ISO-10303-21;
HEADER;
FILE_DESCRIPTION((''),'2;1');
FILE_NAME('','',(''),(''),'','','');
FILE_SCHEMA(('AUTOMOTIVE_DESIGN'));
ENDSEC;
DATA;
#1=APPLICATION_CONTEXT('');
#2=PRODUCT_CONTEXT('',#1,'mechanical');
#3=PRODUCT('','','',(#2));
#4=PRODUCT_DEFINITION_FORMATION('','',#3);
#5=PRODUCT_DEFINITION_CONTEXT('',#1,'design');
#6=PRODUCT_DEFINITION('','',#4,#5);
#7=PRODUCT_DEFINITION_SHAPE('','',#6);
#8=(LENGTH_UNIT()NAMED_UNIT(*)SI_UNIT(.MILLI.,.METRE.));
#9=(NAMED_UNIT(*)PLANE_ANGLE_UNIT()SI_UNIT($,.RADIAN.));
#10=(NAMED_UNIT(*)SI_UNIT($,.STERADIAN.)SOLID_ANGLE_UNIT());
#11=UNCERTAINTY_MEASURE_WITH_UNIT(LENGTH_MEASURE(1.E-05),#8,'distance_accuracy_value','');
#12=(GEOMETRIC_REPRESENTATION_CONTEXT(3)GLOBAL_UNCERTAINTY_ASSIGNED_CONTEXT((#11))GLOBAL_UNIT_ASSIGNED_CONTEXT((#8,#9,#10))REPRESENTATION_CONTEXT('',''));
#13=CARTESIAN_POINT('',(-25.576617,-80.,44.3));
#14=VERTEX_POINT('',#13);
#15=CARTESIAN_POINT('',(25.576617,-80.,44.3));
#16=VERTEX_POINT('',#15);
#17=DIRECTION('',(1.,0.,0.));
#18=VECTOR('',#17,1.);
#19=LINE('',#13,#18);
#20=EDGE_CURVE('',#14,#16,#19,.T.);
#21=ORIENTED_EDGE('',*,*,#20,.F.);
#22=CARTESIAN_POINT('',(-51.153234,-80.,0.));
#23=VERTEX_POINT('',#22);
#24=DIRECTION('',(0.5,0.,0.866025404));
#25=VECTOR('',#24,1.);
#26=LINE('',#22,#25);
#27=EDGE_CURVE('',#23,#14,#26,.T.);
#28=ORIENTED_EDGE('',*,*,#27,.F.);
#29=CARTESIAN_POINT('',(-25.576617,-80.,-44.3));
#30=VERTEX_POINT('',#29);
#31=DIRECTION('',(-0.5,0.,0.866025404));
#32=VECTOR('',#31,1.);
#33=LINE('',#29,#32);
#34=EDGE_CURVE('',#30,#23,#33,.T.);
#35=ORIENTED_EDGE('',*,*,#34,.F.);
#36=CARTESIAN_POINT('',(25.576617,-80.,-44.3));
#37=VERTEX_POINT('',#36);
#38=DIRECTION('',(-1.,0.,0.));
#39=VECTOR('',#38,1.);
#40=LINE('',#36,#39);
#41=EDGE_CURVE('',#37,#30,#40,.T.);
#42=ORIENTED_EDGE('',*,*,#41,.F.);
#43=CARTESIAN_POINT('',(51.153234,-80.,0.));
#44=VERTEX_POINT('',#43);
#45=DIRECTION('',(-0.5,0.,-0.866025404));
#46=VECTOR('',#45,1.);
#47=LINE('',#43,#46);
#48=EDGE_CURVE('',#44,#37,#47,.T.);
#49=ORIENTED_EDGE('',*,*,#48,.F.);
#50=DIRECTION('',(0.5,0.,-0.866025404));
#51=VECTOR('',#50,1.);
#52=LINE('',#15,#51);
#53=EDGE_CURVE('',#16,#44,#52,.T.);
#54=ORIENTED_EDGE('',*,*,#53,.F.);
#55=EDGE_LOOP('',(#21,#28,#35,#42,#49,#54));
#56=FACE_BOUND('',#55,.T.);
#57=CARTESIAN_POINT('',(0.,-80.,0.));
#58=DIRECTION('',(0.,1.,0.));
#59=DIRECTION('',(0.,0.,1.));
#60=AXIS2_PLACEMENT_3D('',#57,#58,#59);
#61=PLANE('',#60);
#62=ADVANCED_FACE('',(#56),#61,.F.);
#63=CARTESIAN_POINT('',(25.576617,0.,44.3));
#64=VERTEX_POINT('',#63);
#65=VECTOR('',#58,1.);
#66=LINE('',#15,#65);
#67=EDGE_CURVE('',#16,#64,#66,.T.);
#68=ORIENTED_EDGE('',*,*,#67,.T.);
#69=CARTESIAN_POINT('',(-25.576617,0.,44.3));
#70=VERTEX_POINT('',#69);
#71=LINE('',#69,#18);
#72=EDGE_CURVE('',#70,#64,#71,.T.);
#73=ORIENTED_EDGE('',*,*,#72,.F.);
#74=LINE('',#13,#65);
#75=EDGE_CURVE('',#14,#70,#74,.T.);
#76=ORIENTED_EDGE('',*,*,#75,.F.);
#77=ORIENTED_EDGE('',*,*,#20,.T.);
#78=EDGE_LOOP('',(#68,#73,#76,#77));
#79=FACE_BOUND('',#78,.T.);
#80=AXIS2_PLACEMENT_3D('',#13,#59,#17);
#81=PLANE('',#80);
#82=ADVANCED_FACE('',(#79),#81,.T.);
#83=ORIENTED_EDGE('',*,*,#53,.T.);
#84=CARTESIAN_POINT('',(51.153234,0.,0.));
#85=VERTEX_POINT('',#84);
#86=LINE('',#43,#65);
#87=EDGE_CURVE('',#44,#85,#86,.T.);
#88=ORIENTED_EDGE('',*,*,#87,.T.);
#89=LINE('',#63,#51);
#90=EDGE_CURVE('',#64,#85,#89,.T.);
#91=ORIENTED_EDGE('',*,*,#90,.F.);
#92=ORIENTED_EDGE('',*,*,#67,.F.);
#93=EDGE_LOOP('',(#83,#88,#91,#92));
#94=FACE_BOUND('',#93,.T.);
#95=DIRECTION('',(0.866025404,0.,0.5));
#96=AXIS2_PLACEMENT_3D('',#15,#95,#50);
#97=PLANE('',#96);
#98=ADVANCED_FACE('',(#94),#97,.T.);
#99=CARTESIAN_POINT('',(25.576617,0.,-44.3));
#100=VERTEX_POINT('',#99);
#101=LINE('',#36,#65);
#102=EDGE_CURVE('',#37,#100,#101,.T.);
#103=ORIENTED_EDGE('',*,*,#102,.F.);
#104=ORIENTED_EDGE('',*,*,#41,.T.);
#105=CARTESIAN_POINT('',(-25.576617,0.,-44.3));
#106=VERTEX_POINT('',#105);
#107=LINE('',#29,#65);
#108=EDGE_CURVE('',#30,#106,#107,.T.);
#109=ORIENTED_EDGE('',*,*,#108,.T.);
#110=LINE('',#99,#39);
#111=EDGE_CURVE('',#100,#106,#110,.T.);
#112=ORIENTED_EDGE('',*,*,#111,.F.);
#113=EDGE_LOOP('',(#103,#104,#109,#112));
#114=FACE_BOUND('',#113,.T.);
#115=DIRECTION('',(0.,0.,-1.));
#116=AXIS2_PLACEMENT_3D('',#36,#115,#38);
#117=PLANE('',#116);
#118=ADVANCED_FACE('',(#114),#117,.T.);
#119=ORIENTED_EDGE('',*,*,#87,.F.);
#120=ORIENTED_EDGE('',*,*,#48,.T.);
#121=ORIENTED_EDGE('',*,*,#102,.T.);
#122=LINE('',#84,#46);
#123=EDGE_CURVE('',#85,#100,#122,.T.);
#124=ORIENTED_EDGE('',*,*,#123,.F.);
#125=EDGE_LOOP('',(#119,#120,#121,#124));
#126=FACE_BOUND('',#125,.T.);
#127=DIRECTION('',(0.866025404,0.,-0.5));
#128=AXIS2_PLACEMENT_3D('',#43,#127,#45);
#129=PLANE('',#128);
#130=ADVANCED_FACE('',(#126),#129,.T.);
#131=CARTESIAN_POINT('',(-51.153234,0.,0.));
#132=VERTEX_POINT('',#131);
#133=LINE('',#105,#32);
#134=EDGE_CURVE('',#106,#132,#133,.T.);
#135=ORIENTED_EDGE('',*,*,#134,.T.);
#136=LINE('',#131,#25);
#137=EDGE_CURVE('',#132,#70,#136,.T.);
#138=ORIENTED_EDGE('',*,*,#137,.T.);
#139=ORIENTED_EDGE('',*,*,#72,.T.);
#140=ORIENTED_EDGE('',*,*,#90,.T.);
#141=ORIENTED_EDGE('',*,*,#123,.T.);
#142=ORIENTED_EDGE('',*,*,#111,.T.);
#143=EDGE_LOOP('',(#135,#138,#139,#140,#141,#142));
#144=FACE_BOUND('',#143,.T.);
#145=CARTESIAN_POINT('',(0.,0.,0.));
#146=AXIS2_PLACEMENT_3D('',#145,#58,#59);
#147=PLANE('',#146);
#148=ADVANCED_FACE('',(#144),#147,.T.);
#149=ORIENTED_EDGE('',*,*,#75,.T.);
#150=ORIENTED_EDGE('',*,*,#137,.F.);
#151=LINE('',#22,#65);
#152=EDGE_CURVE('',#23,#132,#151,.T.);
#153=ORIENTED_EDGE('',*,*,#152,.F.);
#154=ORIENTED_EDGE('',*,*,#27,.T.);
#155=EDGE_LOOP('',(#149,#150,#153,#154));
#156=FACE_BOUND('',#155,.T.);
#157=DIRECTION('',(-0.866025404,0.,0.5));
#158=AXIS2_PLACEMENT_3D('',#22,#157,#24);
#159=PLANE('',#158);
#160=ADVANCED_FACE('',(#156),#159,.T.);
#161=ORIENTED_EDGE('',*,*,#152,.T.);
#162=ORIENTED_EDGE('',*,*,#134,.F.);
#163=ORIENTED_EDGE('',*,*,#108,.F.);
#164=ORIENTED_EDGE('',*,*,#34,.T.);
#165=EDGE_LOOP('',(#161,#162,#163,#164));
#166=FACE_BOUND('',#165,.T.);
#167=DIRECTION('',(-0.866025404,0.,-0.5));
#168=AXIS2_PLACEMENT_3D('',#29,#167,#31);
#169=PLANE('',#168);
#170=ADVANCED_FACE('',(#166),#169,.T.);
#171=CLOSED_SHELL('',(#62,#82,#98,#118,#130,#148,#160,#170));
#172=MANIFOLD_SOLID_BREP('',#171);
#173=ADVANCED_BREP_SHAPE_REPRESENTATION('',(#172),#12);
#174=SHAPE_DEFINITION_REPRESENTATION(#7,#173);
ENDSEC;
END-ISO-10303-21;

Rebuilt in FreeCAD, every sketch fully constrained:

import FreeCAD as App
import Part
import Sketcher
Q = App.Units.Quantity

doc = App.newDocument("Part")
params = doc.addObject("Spreadsheet::Sheet", "Params")
for row, (alias, value) in enumerate([
    ("pad1_length", "80 mm"),
], start=1):
    params.set(f"A{row}", alias)
    params.set(f"B{row}", "=" + value)
    params.setAlias(f"B{row}", alias)

body = doc.addObject("PartDesign::Body", "Body")

sketch1 = body.newObject("Sketcher::SketchObject", "Sketch")
sketch1.AttachmentSupport = (doc.getObject("XZ_Plane"), [""])
sketch1.MapMode = "FlatFace"
sketch1.addGeometry([
    Part.LineSegment(App.Vector(26, 44, 0), App.Vector(51, 0, 0)),
    Part.LineSegment(App.Vector(51, 0, 0), App.Vector(26, -44, 0)),
    Part.LineSegment(App.Vector(26, -44, 0), App.Vector(-26, -44, 0)),
    Part.LineSegment(App.Vector(-26, -44, 0), App.Vector(-51, 0, 0)),
    Part.LineSegment(App.Vector(-51, 0, 0), App.Vector(-26, 44, 0)),
    Part.LineSegment(App.Vector(-26, 44, 0), App.Vector(26, 44, 0)),
], False)
sketch1.addConstraint([
    Sketcher.Constraint("Coincident", 0, 2, 1, 1),
    Sketcher.Constraint("Coincident", 1, 2, 2, 1),
    Sketcher.Constraint("Coincident", 2, 2, 3, 1),
    Sketcher.Constraint("Coincident", 3, 2, 4, 1),
    Sketcher.Constraint("Coincident", 4, 2, 5, 1),
    Sketcher.Constraint("Coincident", 5, 2, 0, 1),
    Sketcher.Constraint("Horizontal", 2),
    Sketcher.Constraint("Horizontal", 5),
    Sketcher.Constraint("Symmetric", 0, 2, 3, 2, -1, 1),
    Sketcher.Constraint("Symmetric", 1, 2, 4, 2, -1, 1),
    Sketcher.Constraint("PointOnObject", 0, 2, -1),
    Sketcher.Constraint("Parallel", 0, 3),
    Sketcher.Constraint("Vertical", 2, 2, 4, 2),
    Sketcher.Constraint("Angle", 0, Q("-60 deg")),
    Sketcher.Constraint("DistanceY", 1, 2, -1, 1, 44.3),
    Sketcher.Constraint("DistanceX", 2, 2, 2, 1, 51.153234),
])
pad1 = body.newObject("PartDesign::Pad", "Pad")
pad1.Profile = sketch1
pad1.setExpression("Length", "Params.pad1_length")

doc.recompute()
